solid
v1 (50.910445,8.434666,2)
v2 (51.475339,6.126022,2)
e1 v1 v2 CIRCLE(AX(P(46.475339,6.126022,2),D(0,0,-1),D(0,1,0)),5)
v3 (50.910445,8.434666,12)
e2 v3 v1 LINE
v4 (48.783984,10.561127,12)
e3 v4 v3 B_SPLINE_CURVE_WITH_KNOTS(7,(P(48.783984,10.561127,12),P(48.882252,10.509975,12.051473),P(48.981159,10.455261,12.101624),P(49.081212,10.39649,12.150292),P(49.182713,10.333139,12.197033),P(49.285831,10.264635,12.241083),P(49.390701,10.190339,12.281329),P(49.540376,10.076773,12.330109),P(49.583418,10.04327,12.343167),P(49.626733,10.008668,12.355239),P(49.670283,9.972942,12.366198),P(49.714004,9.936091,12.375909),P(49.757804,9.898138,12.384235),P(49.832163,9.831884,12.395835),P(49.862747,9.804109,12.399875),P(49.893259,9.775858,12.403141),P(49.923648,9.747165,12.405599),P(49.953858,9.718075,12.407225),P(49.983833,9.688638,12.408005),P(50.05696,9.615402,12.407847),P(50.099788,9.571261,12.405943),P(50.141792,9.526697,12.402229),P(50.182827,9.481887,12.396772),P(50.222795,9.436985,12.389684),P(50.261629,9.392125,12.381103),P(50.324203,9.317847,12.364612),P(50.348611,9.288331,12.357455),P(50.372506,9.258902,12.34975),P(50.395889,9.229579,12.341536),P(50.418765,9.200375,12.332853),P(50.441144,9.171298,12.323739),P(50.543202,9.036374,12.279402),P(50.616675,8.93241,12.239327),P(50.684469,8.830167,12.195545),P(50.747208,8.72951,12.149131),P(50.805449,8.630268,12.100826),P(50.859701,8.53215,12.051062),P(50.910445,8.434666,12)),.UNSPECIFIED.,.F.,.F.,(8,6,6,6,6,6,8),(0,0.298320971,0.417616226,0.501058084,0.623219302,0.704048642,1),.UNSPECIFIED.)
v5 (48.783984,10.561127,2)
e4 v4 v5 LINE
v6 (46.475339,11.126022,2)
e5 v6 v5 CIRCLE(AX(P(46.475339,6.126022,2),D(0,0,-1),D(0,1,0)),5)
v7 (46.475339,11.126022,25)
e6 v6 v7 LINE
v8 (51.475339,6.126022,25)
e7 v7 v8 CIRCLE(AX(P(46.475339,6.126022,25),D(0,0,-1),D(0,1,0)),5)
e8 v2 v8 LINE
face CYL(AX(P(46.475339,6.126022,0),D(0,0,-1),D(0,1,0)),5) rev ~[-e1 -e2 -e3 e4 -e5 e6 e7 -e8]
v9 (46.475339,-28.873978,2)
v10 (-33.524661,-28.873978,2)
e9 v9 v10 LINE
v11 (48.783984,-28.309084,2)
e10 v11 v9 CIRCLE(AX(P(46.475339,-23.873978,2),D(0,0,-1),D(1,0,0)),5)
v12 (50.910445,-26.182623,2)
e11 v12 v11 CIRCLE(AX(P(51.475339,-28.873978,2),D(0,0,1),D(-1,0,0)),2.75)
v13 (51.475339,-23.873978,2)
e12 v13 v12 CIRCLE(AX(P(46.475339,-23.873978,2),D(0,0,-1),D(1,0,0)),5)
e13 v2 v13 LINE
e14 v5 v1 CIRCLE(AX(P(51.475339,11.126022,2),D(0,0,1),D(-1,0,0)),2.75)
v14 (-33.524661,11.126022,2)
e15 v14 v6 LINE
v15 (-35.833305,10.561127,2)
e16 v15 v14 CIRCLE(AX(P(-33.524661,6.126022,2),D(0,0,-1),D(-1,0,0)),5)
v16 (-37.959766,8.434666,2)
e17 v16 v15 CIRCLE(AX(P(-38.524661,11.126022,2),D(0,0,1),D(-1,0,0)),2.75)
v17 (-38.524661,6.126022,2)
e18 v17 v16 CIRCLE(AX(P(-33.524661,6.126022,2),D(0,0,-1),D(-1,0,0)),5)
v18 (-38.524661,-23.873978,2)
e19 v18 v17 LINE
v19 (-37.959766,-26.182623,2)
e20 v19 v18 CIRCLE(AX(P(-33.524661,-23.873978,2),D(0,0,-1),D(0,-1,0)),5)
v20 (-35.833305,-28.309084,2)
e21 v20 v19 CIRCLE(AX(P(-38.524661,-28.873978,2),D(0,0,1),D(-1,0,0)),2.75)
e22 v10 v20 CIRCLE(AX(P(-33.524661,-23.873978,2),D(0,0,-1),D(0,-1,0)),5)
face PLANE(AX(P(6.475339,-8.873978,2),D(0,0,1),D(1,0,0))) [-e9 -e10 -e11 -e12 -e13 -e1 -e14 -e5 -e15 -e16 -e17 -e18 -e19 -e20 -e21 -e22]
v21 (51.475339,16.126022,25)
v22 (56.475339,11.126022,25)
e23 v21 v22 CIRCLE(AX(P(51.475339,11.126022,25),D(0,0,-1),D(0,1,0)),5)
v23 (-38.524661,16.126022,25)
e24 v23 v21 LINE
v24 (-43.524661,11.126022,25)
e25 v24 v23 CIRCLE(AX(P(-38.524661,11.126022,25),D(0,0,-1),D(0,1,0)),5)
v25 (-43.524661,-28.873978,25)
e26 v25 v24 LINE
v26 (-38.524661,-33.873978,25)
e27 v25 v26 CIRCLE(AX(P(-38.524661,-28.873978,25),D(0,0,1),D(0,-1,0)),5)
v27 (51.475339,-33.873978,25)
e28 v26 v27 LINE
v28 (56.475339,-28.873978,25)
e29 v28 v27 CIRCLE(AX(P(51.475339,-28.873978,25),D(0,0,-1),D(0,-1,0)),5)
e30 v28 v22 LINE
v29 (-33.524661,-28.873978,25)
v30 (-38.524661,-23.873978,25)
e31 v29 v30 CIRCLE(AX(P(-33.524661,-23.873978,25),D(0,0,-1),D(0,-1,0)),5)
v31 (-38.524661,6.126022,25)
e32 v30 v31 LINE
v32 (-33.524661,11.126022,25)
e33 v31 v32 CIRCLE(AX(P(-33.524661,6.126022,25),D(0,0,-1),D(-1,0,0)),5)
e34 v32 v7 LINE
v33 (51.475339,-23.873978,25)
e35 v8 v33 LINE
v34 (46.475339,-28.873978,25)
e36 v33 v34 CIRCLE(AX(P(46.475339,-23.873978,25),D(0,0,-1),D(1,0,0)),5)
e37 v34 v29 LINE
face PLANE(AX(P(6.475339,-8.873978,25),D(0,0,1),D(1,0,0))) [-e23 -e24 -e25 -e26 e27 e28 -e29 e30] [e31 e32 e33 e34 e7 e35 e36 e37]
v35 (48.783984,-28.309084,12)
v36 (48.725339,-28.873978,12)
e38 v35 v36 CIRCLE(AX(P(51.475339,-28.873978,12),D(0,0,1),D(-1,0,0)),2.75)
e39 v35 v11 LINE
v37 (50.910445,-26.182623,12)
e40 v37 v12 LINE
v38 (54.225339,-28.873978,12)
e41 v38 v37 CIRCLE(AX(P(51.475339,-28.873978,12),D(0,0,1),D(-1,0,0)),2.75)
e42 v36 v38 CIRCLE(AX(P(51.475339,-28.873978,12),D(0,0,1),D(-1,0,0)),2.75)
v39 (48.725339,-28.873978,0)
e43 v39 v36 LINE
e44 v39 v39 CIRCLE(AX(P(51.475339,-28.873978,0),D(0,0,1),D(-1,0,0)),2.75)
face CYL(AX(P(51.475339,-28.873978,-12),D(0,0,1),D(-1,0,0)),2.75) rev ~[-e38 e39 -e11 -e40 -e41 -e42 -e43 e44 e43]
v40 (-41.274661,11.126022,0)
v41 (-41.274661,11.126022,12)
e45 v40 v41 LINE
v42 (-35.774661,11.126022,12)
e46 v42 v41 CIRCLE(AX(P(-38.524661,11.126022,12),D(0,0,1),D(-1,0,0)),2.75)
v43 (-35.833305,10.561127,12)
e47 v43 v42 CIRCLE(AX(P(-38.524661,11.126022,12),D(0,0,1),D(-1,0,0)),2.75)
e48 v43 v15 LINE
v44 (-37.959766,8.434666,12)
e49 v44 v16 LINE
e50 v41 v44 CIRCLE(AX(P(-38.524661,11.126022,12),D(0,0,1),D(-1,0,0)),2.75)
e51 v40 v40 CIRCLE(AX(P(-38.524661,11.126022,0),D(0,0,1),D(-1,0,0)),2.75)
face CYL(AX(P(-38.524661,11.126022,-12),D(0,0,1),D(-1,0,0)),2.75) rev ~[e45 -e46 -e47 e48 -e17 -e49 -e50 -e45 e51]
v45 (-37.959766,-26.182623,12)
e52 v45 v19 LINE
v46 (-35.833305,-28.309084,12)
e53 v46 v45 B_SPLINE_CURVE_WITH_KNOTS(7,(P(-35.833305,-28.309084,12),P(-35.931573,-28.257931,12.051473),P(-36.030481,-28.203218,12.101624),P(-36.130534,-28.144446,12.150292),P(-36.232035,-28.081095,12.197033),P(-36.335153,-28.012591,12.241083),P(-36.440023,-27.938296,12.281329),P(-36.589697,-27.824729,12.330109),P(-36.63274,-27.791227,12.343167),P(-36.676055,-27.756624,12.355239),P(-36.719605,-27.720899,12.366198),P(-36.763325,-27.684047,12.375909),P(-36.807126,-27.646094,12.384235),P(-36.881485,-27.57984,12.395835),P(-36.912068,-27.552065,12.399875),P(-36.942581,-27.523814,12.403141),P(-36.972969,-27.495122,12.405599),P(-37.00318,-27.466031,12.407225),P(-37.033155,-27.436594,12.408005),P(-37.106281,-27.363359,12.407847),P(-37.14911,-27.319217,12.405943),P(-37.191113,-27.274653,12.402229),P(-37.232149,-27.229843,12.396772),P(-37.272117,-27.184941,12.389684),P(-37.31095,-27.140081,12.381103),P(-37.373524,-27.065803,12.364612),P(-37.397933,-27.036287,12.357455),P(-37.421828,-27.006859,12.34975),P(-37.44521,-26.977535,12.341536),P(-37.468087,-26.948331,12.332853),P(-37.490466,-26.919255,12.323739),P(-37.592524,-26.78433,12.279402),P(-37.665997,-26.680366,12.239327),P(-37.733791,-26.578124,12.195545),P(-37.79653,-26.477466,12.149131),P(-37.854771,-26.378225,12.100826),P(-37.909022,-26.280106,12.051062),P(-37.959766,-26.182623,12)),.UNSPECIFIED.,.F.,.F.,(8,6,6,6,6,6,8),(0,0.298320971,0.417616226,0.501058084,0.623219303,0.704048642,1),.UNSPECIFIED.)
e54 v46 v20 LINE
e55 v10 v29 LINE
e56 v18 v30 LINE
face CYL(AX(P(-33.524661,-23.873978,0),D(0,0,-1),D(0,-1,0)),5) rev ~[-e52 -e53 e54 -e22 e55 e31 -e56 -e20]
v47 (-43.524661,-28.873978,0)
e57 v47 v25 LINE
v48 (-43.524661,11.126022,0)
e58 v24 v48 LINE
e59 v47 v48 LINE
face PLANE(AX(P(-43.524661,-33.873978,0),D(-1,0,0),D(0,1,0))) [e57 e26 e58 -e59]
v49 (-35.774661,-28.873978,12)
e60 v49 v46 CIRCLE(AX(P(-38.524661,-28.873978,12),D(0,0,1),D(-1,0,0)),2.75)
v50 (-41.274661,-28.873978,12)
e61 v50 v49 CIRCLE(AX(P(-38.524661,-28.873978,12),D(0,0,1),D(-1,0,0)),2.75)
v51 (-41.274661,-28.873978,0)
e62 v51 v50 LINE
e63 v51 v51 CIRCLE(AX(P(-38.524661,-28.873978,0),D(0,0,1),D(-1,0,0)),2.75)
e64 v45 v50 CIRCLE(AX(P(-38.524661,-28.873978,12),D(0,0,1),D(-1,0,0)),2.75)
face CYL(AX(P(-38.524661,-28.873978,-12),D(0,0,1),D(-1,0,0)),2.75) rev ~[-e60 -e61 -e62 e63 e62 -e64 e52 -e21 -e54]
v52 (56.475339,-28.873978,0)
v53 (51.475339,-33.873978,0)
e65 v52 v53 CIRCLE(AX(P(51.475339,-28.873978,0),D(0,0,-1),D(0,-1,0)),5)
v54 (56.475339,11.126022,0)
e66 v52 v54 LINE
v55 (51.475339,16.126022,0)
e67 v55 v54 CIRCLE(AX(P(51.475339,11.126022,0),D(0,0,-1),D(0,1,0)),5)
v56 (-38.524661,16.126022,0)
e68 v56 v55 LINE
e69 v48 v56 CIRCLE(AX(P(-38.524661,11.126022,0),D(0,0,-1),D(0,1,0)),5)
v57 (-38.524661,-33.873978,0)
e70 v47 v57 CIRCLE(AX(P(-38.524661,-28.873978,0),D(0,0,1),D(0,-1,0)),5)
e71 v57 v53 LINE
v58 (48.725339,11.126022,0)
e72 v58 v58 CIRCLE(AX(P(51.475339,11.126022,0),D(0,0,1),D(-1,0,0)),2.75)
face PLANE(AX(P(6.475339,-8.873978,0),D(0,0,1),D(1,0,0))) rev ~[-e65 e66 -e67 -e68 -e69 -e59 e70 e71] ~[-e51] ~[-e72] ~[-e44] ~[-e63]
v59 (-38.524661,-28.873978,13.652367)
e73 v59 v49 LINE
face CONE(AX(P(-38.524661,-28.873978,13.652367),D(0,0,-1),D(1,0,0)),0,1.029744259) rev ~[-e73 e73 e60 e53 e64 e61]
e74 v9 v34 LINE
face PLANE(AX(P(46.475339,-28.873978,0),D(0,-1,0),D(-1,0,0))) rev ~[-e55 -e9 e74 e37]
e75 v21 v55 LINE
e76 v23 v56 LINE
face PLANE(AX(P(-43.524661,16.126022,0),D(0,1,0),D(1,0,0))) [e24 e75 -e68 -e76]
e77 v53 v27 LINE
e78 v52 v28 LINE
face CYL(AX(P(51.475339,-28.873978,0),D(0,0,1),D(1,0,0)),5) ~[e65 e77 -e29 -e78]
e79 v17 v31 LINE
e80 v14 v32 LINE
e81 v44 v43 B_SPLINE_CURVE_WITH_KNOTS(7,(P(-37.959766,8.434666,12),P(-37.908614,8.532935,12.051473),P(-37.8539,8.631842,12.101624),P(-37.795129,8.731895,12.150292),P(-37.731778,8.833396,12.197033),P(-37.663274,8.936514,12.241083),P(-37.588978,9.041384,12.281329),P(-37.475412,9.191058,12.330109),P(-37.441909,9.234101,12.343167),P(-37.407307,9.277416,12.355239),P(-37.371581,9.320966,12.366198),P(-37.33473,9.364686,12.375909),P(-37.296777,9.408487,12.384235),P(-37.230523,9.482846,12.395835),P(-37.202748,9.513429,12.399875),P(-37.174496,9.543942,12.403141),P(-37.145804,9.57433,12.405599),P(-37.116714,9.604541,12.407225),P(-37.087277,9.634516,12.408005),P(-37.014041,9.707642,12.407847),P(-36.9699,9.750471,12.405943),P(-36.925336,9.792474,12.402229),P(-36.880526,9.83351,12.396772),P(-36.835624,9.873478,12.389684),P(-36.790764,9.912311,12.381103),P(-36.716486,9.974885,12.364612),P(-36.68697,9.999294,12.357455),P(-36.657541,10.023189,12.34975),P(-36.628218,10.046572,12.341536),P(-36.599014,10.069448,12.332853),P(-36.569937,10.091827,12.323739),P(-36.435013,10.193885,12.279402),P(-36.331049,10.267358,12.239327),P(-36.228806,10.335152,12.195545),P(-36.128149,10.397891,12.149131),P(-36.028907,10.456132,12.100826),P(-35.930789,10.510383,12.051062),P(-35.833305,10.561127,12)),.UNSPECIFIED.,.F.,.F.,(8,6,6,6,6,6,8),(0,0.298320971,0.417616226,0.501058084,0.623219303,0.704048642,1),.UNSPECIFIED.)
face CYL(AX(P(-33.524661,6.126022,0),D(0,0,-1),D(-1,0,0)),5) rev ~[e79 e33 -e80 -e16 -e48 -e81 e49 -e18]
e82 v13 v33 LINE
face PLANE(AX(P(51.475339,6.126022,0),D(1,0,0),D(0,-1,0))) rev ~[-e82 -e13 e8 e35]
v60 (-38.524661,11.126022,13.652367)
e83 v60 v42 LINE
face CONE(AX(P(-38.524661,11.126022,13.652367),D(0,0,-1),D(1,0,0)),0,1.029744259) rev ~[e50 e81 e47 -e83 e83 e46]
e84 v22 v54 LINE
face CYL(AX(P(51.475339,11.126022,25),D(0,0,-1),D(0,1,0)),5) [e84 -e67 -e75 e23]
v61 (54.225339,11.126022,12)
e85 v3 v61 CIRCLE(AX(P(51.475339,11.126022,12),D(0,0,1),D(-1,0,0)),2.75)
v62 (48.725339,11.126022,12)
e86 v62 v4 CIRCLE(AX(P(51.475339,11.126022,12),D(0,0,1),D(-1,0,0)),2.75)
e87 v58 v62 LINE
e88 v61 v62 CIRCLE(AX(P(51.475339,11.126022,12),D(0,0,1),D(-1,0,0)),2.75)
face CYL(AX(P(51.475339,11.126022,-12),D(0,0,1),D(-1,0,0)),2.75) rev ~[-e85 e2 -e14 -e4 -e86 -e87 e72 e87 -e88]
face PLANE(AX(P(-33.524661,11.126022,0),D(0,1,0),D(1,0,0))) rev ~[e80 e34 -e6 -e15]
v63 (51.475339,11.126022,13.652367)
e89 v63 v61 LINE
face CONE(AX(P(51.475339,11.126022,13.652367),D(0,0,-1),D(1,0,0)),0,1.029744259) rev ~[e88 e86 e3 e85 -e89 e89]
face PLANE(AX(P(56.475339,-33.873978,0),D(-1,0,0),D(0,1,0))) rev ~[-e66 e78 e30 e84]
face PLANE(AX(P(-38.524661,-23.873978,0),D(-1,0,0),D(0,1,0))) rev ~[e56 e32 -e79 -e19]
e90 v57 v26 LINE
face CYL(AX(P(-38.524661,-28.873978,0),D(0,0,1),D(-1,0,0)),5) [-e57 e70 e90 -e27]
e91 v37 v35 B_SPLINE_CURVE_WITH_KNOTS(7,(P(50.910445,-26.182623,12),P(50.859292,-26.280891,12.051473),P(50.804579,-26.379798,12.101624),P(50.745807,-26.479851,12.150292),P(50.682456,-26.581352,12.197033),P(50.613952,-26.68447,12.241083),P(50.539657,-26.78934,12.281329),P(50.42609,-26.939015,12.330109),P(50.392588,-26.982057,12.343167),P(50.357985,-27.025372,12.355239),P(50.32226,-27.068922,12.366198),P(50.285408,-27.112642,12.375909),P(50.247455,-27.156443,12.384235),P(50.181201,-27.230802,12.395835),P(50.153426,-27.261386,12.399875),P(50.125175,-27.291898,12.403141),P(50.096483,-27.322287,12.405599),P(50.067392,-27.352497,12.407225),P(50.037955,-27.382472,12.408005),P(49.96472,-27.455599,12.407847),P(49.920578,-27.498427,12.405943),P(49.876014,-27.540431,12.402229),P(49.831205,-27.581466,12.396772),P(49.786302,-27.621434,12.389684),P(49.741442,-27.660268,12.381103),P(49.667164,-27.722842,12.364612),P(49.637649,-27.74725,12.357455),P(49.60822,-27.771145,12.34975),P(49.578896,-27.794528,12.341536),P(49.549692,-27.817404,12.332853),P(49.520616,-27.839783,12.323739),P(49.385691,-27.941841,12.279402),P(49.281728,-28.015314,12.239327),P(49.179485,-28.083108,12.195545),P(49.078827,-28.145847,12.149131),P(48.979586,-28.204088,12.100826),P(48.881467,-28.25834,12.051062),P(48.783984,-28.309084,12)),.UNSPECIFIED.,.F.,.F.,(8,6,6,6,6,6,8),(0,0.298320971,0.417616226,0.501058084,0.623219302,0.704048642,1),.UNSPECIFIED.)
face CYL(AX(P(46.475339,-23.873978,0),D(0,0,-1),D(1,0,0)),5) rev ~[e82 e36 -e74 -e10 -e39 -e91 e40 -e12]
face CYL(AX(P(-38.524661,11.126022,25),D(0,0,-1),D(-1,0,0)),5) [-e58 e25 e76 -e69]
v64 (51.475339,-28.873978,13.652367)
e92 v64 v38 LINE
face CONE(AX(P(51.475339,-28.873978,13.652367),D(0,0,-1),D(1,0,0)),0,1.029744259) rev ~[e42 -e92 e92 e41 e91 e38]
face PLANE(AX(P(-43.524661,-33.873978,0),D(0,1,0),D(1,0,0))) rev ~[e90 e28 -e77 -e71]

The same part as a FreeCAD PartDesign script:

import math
import FreeCAD as App
import Part
import Sketcher
Q = App.Units.Quantity


def edges_at(feature, points):
    """Names of the edges that pass closest to the given points."""
    edges = feature.Shape.Edges
    near = lambda p: min(range(len(edges)), key=lambda i: edges[i].distToShape(Part.Vertex(*p))[0])
    return sorted({f"Edge{near(p) + 1}" for p in points})

doc = App.newDocument("Part")
body = doc.addObject("PartDesign::Body", "Body")

# Sketch on XY plane
sketch1 = body.newObject("Sketcher::SketchObject", "Sketch")
sketch1.AttachmentSupport = (doc.getObject("XY_Plane"), [""])
sketch1.MapMode = "FlatFace"
sketch1.addGeometry([
    Part.LineSegment(App.Vector(-43.524661, 16.126022, 0), App.Vector(-43.524661, -33.873978, 0)),  # 0
    Part.LineSegment(App.Vector(-43.524661, -33.873978, 0), App.Vector(56.475339, -33.873978, 0)),  # 1
    Part.LineSegment(App.Vector(56.475339, -33.873978, 0), App.Vector(56.475339, 16.126022, 0)),  # 2
    Part.LineSegment(App.Vector(56.475339, 16.126022, 0), App.Vector(-43.524661, 16.126022, 0)),  # 3
    Part.LineSegment(App.Vector(-38.524661, -23.873978, 0), App.Vector(-38.524661, 6.126022, 0)),  # 4
    Part.ArcOfCircle(Part.Circle(App.Vector(-33.524661, 6.126022, 0), App.Vector(0, 0, 1), 5), math.radians(90), math.radians(180)),  # 5
    Part.LineSegment(App.Vector(-33.524661, 11.126022, 0), App.Vector(46.475339, 11.126022, 0)),  # 6
    Part.ArcOfCircle(Part.Circle(App.Vector(46.475339, 6.126022, 0), App.Vector(0, 0, 1), 5), math.radians(0), math.radians(90)),  # 7
    Part.LineSegment(App.Vector(51.475339, 6.126022, 0), App.Vector(51.475339, -23.873978, 0)),  # 8
    Part.ArcOfCircle(Part.Circle(App.Vector(46.475339, -23.873978, 0), App.Vector(0, 0, 1), 5), math.radians(-90), math.radians(0)),  # 9
    Part.LineSegment(App.Vector(46.475339, -28.873978, 0), App.Vector(-33.524661, -28.873978, 0)),  # 10
    Part.ArcOfCircle(Part.Circle(App.Vector(-33.524661, -23.873978, 0), App.Vector(0, 0, 1), 5), math.radians(180), math.radians(270)),  # 11
], False)
sketch1.addConstraint([
    Sketcher.Constraint("Coincident", 0, 2, 1, 1),
    Sketcher.Constraint("Coincident", 1, 2, 2, 1),
    Sketcher.Constraint("Coincident", 2, 2, 3, 1),
    Sketcher.Constraint("Coincident", 3, 2, 0, 1),
    Sketcher.Constraint("Tangent", 4, 2, 5, 2),
    Sketcher.Constraint("Tangent", 5, 1, 6, 1),
    Sketcher.Constraint("Tangent", 6, 2, 7, 2),
    Sketcher.Constraint("Tangent", 7, 1, 8, 1),
    Sketcher.Constraint("Tangent", 8, 2, 9, 2),
    Sketcher.Constraint("Tangent", 9, 1, 10, 1),
    Sketcher.Constraint("Tangent", 10, 2, 11, 2),
    Sketcher.Constraint("Tangent", 11, 1, 4, 1),
    Sketcher.Constraint("Vertical", 0),
    Sketcher.Constraint("Horizontal", 1),
    Sketcher.Constraint("Vertical", 2),
    Sketcher.Constraint("Horizontal", 3),
    Sketcher.Constraint("Vertical", 4),
    Sketcher.Constraint("Horizontal", 6),
    Sketcher.Constraint("Vertical", 8),
    Sketcher.Constraint("Horizontal", 10),
    Sketcher.Constraint("Equal", 5, 7),
    Sketcher.Constraint("Equal", 7, 9),
    Sketcher.Constraint("Equal", 9, 11),
    Sketcher.Constraint("Radius", 5, Q("5 mm")),
    Sketcher.Constraint("DistanceX", 1, 1, 1, 2, Q("100 mm")),
    Sketcher.Constraint("DistanceX", 6, 1, 6, 2, Q("80 mm")),
    Sketcher.Constraint("DistanceY", 0, 2, 0, 1, Q("50 mm")),
    Sketcher.Constraint("DistanceY", 4, 1, 4, 2, Q("30 mm")),
    Sketcher.Constraint("DistanceX", 0, 2, 11, 3, Q("10 mm")),
    Sketcher.Constraint("DistanceY", 0, 2, 11, 3, Q("10 mm")),
    Sketcher.Constraint("DistanceX", 5, 3, -1, 1, Q("33.524661 mm")),
    Sketcher.Constraint("DistanceY", -1, 1, 5, 3, Q("6.126022 mm")),
])
pad1 = body.newObject("PartDesign::Pad", "Pad")
pad1.Profile = sketch1
pad1.Length = 25

# Sketch on XY plane
sketch2 = body.newObject("Sketcher::SketchObject", "Sketch001")
sketch2.AttachmentSupport = (doc.getObject("XY_Plane"), [""])
sketch2.MapMode = "FlatFace"
sketch2.addGeometry([
    Part.LineSegment(App.Vector(-43.524661, 16.126022, 0), App.Vector(-43.524661, -33.873978, 0)),
    Part.LineSegment(App.Vector(-43.524661, -33.873978, 0), App.Vector(56.475339, -33.873978, 0)),
    Part.LineSegment(App.Vector(56.475339, -33.873978, 0), App.Vector(56.475339, 16.126022, 0)),
    Part.LineSegment(App.Vector(56.475339, 16.126022, 0), App.Vector(-43.524661, 16.126022, 0)),
], False)
sketch2.addConstraint([
    Sketcher.Constraint("Coincident", 0, 2, 1, 1),
    Sketcher.Constraint("Coincident", 1, 2, 2, 1),
    Sketcher.Constraint("Coincident", 2, 2, 3, 1),
    Sketcher.Constraint("Coincident", 3, 2, 0, 1),
    Sketcher.Constraint("Vertical", 0),
    Sketcher.Constraint("Horizontal", 1),
    Sketcher.Constraint("Vertical", 2),
    Sketcher.Constraint("Horizontal", 3),
    Sketcher.Constraint("DistanceX", 1, 1, 1, 2, Q("100 mm")),
    Sketcher.Constraint("DistanceY", 0, 2, 0, 1, Q("50 mm")),
    Sketcher.Constraint("DistanceX", 0, 2, -1, 1, Q("43.524661 mm")),
    Sketcher.Constraint("DistanceY", 0, 2, -1, 1, Q("33.873978 mm")),
])
pad2 = body.newObject("PartDesign::Pad", "Pad001")
pad2.Profile = sketch2
pad2.Length = 2
doc.recompute()

fillet = body.newObject("PartDesign::Fillet", "Fillet")
fillet.Base = (pad2, edges_at(pad2, [
    (-43.525, -33.874, 12.5),
    (56.475, -33.874, 12.5),
    (56.475, 16.126, 12.5),
    (-43.525, 16.126, 12.5),
]))
fillet.Radius = 5

# Sketch on XY plane
sketch3 = body.newObject("Sketcher::SketchObject", "Sketch002")
sketch3.AttachmentSupport = (doc.getObject("XY_Plane"), [""])
sketch3.MapMode = "FlatFace"
sketch3.addGeometry([
    Part.Circle(App.Vector(51.475339, 11.126022, 0), App.Vector(0, 0, 1), 2.75),
    Part.Circle(App.Vector(51.475339, -28.873978, 0), App.Vector(0, 0, 1), 2.75),
    Part.Circle(App.Vector(-38.524661, -28.873978, 0), App.Vector(0, 0, 1), 2.75),
    Part.Circle(App.Vector(-38.524661, 11.126022, 0), App.Vector(0, 0, 1), 2.75),
], False)
sketch3.addConstraint([
    Sketcher.Constraint("Equal", 0, 1),
    Sketcher.Constraint("Equal", 1, 2),
    Sketcher.Constraint("Equal", 2, 3),
    Sketcher.Constraint("Horizontal", 1, 3, 2, 3),
    Sketcher.Constraint("Horizontal", 0, 3, 3, 3),
    Sketcher.Constraint("Vertical", 0, 3, 1, 3),
    Sketcher.Constraint("Vertical", 2, 3, 3, 3),
    Sketcher.Constraint("Diameter", 0, Q("5.5 mm")),
    Sketcher.Constraint("DistanceY", 1, 3, 0, 3, Q("40 mm")),
    Sketcher.Constraint("DistanceX", 2, 3, 1, 3, Q("90 mm")),
    Sketcher.Constraint("DistanceX", -1, 1, 0, 3, Q("51.475339 mm")),
    Sketcher.Constraint("DistanceY", -1, 1, 0, 3, Q("11.126022 mm")),
])
doc.recompute()
hole = body.newObject("PartDesign::Hole", "Hole")
hole.Profile = sketch3
hole.ThreadType = "None"
hole.Diameter = 5.5
hole.DepthType = "Dimension"
hole.Depth = 12
hole.DrillPoint = "Angled"
hole.DrillPointAngle = 118
hole.Reversed = True

doc.recompute()
